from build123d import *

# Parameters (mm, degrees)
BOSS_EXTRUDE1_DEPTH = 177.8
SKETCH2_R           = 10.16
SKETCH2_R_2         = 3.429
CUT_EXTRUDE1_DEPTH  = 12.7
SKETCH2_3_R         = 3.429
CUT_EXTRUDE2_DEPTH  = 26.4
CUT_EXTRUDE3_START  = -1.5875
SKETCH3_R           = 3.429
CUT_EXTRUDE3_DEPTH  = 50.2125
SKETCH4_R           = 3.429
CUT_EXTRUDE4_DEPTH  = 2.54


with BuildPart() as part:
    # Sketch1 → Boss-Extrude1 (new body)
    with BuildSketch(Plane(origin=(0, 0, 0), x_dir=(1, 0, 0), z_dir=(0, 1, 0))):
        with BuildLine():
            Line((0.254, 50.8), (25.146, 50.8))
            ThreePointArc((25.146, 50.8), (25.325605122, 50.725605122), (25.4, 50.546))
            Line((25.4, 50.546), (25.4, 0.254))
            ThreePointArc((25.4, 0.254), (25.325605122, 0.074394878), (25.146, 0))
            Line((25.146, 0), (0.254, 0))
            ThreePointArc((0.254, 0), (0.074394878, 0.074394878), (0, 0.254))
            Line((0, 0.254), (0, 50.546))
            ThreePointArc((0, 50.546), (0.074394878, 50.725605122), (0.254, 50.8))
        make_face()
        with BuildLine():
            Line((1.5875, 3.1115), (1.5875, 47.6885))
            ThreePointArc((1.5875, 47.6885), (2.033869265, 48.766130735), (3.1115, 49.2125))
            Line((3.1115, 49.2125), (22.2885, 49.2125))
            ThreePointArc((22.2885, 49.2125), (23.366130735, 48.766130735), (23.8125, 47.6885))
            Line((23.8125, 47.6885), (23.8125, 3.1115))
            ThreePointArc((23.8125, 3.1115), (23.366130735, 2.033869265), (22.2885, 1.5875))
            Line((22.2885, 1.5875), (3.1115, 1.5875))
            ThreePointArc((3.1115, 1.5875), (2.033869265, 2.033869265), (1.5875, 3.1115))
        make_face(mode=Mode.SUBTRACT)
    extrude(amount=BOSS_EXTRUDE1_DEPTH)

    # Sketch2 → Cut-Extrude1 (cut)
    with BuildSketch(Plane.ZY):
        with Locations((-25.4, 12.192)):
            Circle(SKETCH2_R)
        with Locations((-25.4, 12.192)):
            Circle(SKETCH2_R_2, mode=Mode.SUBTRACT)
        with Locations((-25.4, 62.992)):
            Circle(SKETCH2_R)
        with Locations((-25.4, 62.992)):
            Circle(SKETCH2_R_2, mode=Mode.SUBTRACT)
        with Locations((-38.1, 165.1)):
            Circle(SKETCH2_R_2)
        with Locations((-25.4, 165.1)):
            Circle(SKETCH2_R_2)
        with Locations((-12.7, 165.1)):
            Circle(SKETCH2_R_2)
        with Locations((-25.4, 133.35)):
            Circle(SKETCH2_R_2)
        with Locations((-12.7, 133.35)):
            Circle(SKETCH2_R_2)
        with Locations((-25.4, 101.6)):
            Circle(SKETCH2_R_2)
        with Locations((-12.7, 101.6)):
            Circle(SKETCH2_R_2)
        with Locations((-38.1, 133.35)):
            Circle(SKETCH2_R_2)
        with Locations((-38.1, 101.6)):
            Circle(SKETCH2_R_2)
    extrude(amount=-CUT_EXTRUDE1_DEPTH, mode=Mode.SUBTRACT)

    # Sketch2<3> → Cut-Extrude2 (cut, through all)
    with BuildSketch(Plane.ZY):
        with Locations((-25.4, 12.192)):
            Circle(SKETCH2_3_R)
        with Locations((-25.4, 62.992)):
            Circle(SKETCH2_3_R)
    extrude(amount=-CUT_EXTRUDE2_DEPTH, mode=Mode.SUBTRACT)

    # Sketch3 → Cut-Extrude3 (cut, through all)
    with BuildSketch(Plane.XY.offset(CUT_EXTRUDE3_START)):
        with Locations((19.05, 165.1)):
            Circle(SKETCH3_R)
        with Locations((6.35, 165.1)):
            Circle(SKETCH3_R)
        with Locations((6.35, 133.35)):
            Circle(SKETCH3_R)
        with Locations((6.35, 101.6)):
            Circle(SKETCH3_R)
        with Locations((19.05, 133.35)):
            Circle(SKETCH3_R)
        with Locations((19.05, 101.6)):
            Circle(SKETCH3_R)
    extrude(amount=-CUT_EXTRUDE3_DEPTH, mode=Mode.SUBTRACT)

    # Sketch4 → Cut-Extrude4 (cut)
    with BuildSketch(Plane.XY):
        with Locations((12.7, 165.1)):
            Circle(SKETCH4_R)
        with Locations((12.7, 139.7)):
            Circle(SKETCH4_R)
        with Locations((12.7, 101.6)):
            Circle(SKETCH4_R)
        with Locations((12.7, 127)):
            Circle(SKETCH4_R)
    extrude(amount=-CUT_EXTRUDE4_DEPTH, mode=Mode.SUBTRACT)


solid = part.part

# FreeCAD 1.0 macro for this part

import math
import FreeCAD as App
import Part
import Sketcher
from FreeCAD import Vector
Q = App.Units.Quantity

doc = App.newDocument("Part")
body = doc.addObject("PartDesign::Body", "Body")
body.AllowCompound = True

# Sketch on XZ plane
sketch1 = doc.addObject("Sketcher::SketchObject", "Sketch")
body.addObject(sketch1)
sketch1.AttachmentSupport = (doc.XZ_Plane, [""])
sketch1.MapMode = "FlatFace"
sketch1.addGeometry([
    Part.LineSegment(Vector(25.146, -50.8, 0), Vector(0.254, -50.8, 0)),  # 0
    Part.ArcOfCircle(Part.Circle(Vector(0.254, -50.546, 0), Vector(0, 0, 1), 0.254), math.radians(-180), math.radians(-90)),  # 1
    Part.LineSegment(Vector(0, -50.546, 0), Vector(0, -0.254, 0)),  # 2
    Part.ArcOfCircle(Part.Circle(Vector(0.254, -0.254, 0), Vector(0, 0, 1), 0.254), math.radians(90), math.radians(180)),  # 3
    Part.LineSegment(Vector(0.254, 0, 0), Vector(25.146, 0, 0)),  # 4
    Part.ArcOfCircle(Part.Circle(Vector(25.146, -0.254, 0), Vector(0, 0, 1), 0.254), math.radians(0), math.radians(90)),  # 5
    Part.LineSegment(Vector(25.4, -0.254, 0), Vector(25.4, -50.546, 0)),  # 6
    Part.ArcOfCircle(Part.Circle(Vector(25.146, -50.546, 0), Vector(0, 0, 1), 0.254), math.radians(-90), math.radians(0)),  # 7
    Part.LineSegment(Vector(1.5875, -3.1115, 0), Vector(1.5875, -47.6885, 0)),  # 8
    Part.ArcOfCircle(Part.Circle(Vector(3.1115, -47.6885, 0), Vector(0, 0, 1), 1.524), math.radians(180), math.radians(270)),  # 9
    Part.LineSegment(Vector(3.1115, -49.2125, 0), Vector(22.2885, -49.2125, 0)),  # 10
    Part.ArcOfCircle(Part.Circle(Vector(22.2885, -47.6885, 0), Vector(0, 0, 1), 1.524), math.radians(-90), math.radians(0)),  # 11
    Part.LineSegment(Vector(23.8125, -47.6885, 0), Vector(23.8125, -3.1115, 0)),  # 12
    Part.ArcOfCircle(Part.Circle(Vector(22.2885, -3.1115, 0), Vector(0, 0, 1), 1.524), math.radians(0), math.radians(90)),  # 13
    Part.LineSegment(Vector(22.2885, -1.5875, 0), Vector(3.1115, -1.5875, 0)),  # 14
    Part.ArcOfCircle(Part.Circle(Vector(3.1115, -3.1115, 0), Vector(0, 0, 1), 1.524), math.radians(90), math.radians(180)),  # 15
], False)
sketch1.addConstraint([
    Sketcher.Constraint("Tangent", 0, 2, 1, 2),
    Sketcher.Constraint("Tangent", 1, 1, 2, 1),
    Sketcher.Constraint("Tangent", 2, 2, 3, 2),
    Sketcher.Constraint("Tangent", 3, 1, 4, 1),
    Sketcher.Constraint("Tangent", 4, 2, 5, 2),
    Sketcher.Constraint("Tangent", 5, 1, 6, 1),
    Sketcher.Constraint("Tangent", 6, 2, 7, 2),
    Sketcher.Constraint("Tangent", 7, 1, 0, 1),
    Sketcher.Constraint("Tangent", 8, 2, 9, 1),
    Sketcher.Constraint("Tangent", 9, 2, 10, 1),
    Sketcher.Constraint("Tangent", 10, 2, 11, 1),
    Sketcher.Constraint("Tangent", 11, 2, 12, 1),
    Sketcher.Constraint("Tangent", 12, 2, 13, 1),
    Sketcher.Constraint("Tangent", 13, 2, 14, 1),
    Sketcher.Constraint("Tangent", 14, 2, 15, 1),
    Sketcher.Constraint("Tangent", 15, 2, 8, 1),
    Sketcher.Constraint("Horizontal", 0),
    Sketcher.Constraint("Vertical", 2),
    Sketcher.Constraint("Horizontal", 4),
    Sketcher.Constraint("Vertical", 6),
    Sketcher.Constraint("Vertical", 8),
    Sketcher.Constraint("Horizontal", 10),
    Sketcher.Constraint("Vertical", 12),
    Sketcher.Constraint("Horizontal", 14),
    Sketcher.Constraint("Equal", 1, 3),
    Sketcher.Constraint("Equal", 3, 5),
    Sketcher.Constraint("Equal", 5, 7),
    Sketcher.Constraint("Equal", 9, 11),
    Sketcher.Constraint("Equal", 11, 13),
    Sketcher.Constraint("Equal", 13, 15),
    Sketcher.Constraint("PointOnObject", 1, 1, -2),
    Sketcher.Constraint("PointOnObject", 3, 1, -1),
    Sketcher.Constraint("Radius", 1, Q("0.01 in")),
    Sketcher.Constraint("Radius", 9, Q("0.06 in")),
    Sketcher.Constraint("DistanceY", 0, 2, -1, 1, Q("2 in")),
    Sketcher.Constraint("DistanceX", -1, 1, 5, 1, Q("1 in")),
    Sketcher.Constraint("DistanceX", 10, 1, 10, 2, Q("0.755 in")),
    Sketcher.Constraint("DistanceY", 8, 2, 8, 1, Q("1.755 in")),
    Sketcher.Constraint("DistanceX", -1, 1, 8, 2, Q("0.0625 in")),
    Sketcher.Constraint("DistanceY", 9, 2, -1, 1, Q("1.9375 in")),
])
pad1 = doc.addObject("PartDesign::Pad", "Pad")
body.addObject(pad1)
pad1.Profile = sketch1
pad1.Length = Q("7 in")
pad1.Reversed = True

# Sketch on YZ plane
sketch2 = doc.addObject("Sketcher::SketchObject", "Sketch001")
body.addObject(sketch2)
sketch2.AttachmentSupport = (doc.YZ_Plane, [""])
sketch2.MapMode = "FlatFace"
sketch2.addGeometry([
    Part.Circle(Vector(12.192, -25.4, 0), Vector(0, 0, 1), 10.16),  # 0
    Part.Circle(Vector(12.192, -25.4, 0), Vector(0, 0, 1), 3.429),  # 1
    Part.Circle(Vector(62.992, -25.4, 0), Vector(0, 0, 1), 10.16),  # 2
    Part.Circle(Vector(62.992, -25.4, 0), Vector(0, 0, 1), 3.429),  # 3
    Part.Circle(Vector(165.1, -38.1, 0), Vector(0, 0, 1), 3.429),  # 4
    Part.Circle(Vector(165.1, -25.4, 0), Vector(0, 0, 1), 3.429),  # 5
    Part.Circle(Vector(165.1, -12.7, 0), Vector(0, 0, 1), 3.429),  # 6
    Part.Circle(Vector(133.35, -25.4, 0), Vector(0, 0, 1), 3.429),  # 7
    Part.Circle(Vector(133.35, -12.7, 0), Vector(0, 0, 1), 3.429),  # 8
    Part.Circle(Vector(101.6, -25.4, 0), Vector(0, 0, 1), 3.429),  # 9
    Part.Circle(Vector(101.6, -12.7, 0), Vector(0, 0, 1), 3.429),  # 10
    Part.Circle(Vector(133.35, -38.1, 0), Vector(0, 0, 1), 3.429),  # 11
    Part.Circle(Vector(101.6, -38.1, 0), Vector(0, 0, 1), 3.429),  # 12
], False)
sketch2.addConstraint([
    Sketcher.Constraint("Coincident", 1, 3, 0, 3),
    Sketcher.Constraint("Coincident", 3, 3, 2, 3),
    Sketcher.Constraint("Equal", 0, 2),
    Sketcher.Constraint("Equal", 1, 3),
    Sketcher.Constraint("Equal", 3, 4),
    Sketcher.Constraint("Equal", 4, 5),
    Sketcher.Constraint("Equal", 5, 6),
    Sketcher.Constraint("Equal", 6, 7),
    Sketcher.Constraint("Equal", 7, 8),
    Sketcher.Constraint("Equal", 8, 9),
    Sketcher.Constraint("Equal", 9, 10),
    Sketcher.Constraint("Equal", 10, 11),
    Sketcher.Constraint("Equal", 11, 12),
    Sketcher.Constraint("Horizontal", 1, 3, 2, 3),
    Sketcher.Constraint("Horizontal", 3, 3, 5, 3),
    Sketcher.Constraint("Horizontal", 5, 3, 7, 3),
    Sketcher.Constraint("Horizontal", 6, 3, 8, 3),
    Sketcher.Constraint("Horizontal", 7, 3, 9, 3),
    Sketcher.Constraint("Horizontal", 8, 3, 10, 3),
    Sketcher.Constraint("Horizontal", 4, 3, 11, 3),
    Sketcher.Constraint("Horizontal", 11, 3, 12, 3),
    Sketcher.Constraint("Vertical", 4, 3, 5, 3),
    Sketcher.Constraint("Vertical", 5, 3, 6, 3),
    Sketcher.Constraint("Vertical", 7, 3, 8, 3),
    Sketcher.Constraint("Vertical", 9, 3, 10, 3),
    Sketcher.Constraint("Vertical", 8, 3, 11, 3),
    Sketcher.Constraint("Vertical", 10, 3, 12, 3),
    Sketcher.Constraint("Diameter", 0, Q("0.8 in")),
    Sketcher.Constraint("Diameter", 1, Q("0.27 in")),
    Sketcher.Constraint("DistanceY", 0, 3, -1, 1, Q("1 in")),
    Sketcher.Constraint("DistanceX", -1, 1, 9, 3, Q("4 in")),
    Sketcher.Constraint("DistanceX", 0, 3, 2, 3, Q("2 in")),
    Sketcher.Constraint("DistanceY", 4, 3, 6, 3, Q("1 in")),
    Sketcher.Constraint("DistanceX", -1, 1, 4, 3, Q("6.5 in")),
    Sketcher.Constraint("DistanceY", 4, 3, -1, 1, Q("1.5 in")),
    Sketcher.Constraint("DistanceX", -1, 1, 0, 3, Q("0.48 in")),
    Sketcher.Constraint("DistanceX", -1, 1, 7, 3, Q("5.25 in")),
])
pocket1 = doc.addObject("PartDesign::Pocket", "Pocket")
body.addObject(pocket1)
pocket1.Profile = sketch2
pocket1.Length = Q("0.5 in")
pocket1.Reversed = True

# Sketch on YZ plane
sketch3 = doc.addObject("Sketcher::SketchObject", "Sketch002")
body.addObject(sketch3)
sketch3.AttachmentSupport = (doc.YZ_Plane, [""])
sketch3.MapMode = "FlatFace"
sketch3.addGeometry([
    Part.Circle(Vector(12.192, -25.4, 0), Vector(0, 0, 1), 3.429),
    Part.Circle(Vector(62.992, -25.4, 0), Vector(0, 0, 1), 3.429),
], False)
sketch3.addConstraint([
    Sketcher.Constraint("Equal", 0, 1),
    Sketcher.Constraint("Horizontal", 0, 3, 1, 3),
    Sketcher.Constraint("Diameter", 0, Q("0.27 in")),
    Sketcher.Constraint("DistanceY", 0, 3, -1, 1, Q("1 in")),
    Sketcher.Constraint("DistanceX", 0, 3, 1, 3, Q("2 in")),
    Sketcher.Constraint("DistanceX", -1, 1, 0, 3, Q("0.48 in")),
])
pocket2 = doc.addObject("PartDesign::Pocket", "Pocket001")
body.addObject(pocket2)
pocket2.Profile = sketch3
pocket2.Type = "ThroughAll"
pocket2.Reversed = True

# Sketch on XY plane
sketch4 = doc.addObject("Sketcher::SketchObject", "Sketch003")
body.addObject(sketch4)
sketch4.AttachmentSupport = (doc.XY_Plane, [""])
sketch4.MapMode = "FlatFace"
sketch4.AttachmentOffset = App.Placement(Vector(0, 0, -0.0625 * 25.4), App.Rotation())
sketch4.addGeometry([
    Part.Circle(Vector(19.05, 165.1, 0), Vector(0, 0, 1), 3.429),  # 0
    Part.Circle(Vector(6.35, 165.1, 0), Vector(0, 0, 1), 3.429),  # 1
    Part.Circle(Vector(6.35, 133.35, 0), Vector(0, 0, 1), 3.429),  # 2
    Part.Circle(Vector(6.35, 101.6, 0), Vector(0, 0, 1), 3.429),  # 3
    Part.Circle(Vector(19.05, 133.35, 0), Vector(0, 0, 1), 3.429),  # 4
    Part.Circle(Vector(19.05, 101.6, 0), Vector(0, 0, 1), 3.429),  # 5
], False)
sketch4.addConstraint([
    Sketcher.Constraint("Equal", 0, 1),
    Sketcher.Constraint("Equal", 1, 2),
    Sketcher.Constraint("Equal", 2, 3),
    Sketcher.Constraint("Equal", 3, 4),
    Sketcher.Constraint("Equal", 4, 5),
    Sketcher.Constraint("Horizontal", 0, 3, 1, 3),
    Sketcher.Constraint("Horizontal", 2, 3, 4, 3),
    Sketcher.Constraint("Horizontal", 3, 3, 5, 3),
    Sketcher.Constraint("Vertical", 1, 3, 2, 3),
    Sketcher.Constraint("Vertical", 2, 3, 3, 3),
    Sketcher.Constraint("Vertical", 0, 3, 4, 3),
    Sketcher.Constraint("Vertical", 4, 3, 5, 3),
    Sketcher.Constraint("Diameter", 0, Q("0.27 in")),
    Sketcher.Constraint("DistanceY", -1, 1, 3, 3, Q("4 in")),
    Sketcher.Constraint("DistanceY", -1, 1, 0, 3, Q("6.5 in")),
    Sketcher.Constraint("DistanceX", 1, 3, 0, 3, Q("0.5 in")),
    Sketcher.Constraint("DistanceX", -1, 1, 0, 3, Q("0.75 in")),
    Sketcher.Constraint("DistanceY", -1, 1, 2, 3, Q("5.25 in")),
])
pocket3 = doc.addObject("PartDesign::Pocket", "Pocket002")
body.addObject(pocket3)
pocket3.Profile = sketch4
pocket3.Type = "ThroughAll"

# Sketch on XY plane
sketch5 = doc.addObject("Sketcher::SketchObject", "Sketch004")
body.addObject(sketch5)
sketch5.AttachmentSupport = (doc.XY_Plane, [""])
sketch5.MapMode = "FlatFace"
sketch5.addGeometry([
    Part.Circle(Vector(12.7, 165.1, 0), Vector(0, 0, 1), 3.429),
    Part.Circle(Vector(12.7, 139.7, 0), Vector(0, 0, 1), 3.429),
    Part.Circle(Vector(12.7, 101.6, 0), Vector(0, 0, 1), 3.429),
    Part.Circle(Vector(12.7, 127, 0), Vector(0, 0, 1), 3.429),
], False)
sketch5.addConstraint([
    Sketcher.Constraint("Equal", 0, 1),
    Sketcher.Constraint("Equal", 1, 2),
    Sketcher.Constraint("Equal", 2, 3),
    Sketcher.Constraint("Vertical", 0, 3, 1, 3),
    Sketcher.Constraint("Vertical", 1, 3, 2, 3),
    Sketcher.Constraint("Vertical", 2, 3, 3, 3),
    Sketcher.Constraint("Diameter", 0, Q("0.27 in")),
    Sketcher.Constraint("DistanceY", -1, 1, 2, 3, Q("4 in")),
    Sketcher.Constraint("DistanceY", -1, 1, 3, 3, Q("5 in")),
    Sketcher.Constraint("DistanceY", 1, 3, 0, 3, Q("1 in")),
    Sketcher.Constraint("DistanceX", -1, 1, 0, 3, Q("0.5 in")),
    Sketcher.Constraint("DistanceY", -1, 1, 0, 3, Q("6.5 in")),
])
pocket4 = doc.addObject("PartDesign::Pocket", "Pocket003")
body.addObject(pocket4)
pocket4.Profile = sketch5
pocket4.Length = Q("0.1 in")

doc.recompute()
